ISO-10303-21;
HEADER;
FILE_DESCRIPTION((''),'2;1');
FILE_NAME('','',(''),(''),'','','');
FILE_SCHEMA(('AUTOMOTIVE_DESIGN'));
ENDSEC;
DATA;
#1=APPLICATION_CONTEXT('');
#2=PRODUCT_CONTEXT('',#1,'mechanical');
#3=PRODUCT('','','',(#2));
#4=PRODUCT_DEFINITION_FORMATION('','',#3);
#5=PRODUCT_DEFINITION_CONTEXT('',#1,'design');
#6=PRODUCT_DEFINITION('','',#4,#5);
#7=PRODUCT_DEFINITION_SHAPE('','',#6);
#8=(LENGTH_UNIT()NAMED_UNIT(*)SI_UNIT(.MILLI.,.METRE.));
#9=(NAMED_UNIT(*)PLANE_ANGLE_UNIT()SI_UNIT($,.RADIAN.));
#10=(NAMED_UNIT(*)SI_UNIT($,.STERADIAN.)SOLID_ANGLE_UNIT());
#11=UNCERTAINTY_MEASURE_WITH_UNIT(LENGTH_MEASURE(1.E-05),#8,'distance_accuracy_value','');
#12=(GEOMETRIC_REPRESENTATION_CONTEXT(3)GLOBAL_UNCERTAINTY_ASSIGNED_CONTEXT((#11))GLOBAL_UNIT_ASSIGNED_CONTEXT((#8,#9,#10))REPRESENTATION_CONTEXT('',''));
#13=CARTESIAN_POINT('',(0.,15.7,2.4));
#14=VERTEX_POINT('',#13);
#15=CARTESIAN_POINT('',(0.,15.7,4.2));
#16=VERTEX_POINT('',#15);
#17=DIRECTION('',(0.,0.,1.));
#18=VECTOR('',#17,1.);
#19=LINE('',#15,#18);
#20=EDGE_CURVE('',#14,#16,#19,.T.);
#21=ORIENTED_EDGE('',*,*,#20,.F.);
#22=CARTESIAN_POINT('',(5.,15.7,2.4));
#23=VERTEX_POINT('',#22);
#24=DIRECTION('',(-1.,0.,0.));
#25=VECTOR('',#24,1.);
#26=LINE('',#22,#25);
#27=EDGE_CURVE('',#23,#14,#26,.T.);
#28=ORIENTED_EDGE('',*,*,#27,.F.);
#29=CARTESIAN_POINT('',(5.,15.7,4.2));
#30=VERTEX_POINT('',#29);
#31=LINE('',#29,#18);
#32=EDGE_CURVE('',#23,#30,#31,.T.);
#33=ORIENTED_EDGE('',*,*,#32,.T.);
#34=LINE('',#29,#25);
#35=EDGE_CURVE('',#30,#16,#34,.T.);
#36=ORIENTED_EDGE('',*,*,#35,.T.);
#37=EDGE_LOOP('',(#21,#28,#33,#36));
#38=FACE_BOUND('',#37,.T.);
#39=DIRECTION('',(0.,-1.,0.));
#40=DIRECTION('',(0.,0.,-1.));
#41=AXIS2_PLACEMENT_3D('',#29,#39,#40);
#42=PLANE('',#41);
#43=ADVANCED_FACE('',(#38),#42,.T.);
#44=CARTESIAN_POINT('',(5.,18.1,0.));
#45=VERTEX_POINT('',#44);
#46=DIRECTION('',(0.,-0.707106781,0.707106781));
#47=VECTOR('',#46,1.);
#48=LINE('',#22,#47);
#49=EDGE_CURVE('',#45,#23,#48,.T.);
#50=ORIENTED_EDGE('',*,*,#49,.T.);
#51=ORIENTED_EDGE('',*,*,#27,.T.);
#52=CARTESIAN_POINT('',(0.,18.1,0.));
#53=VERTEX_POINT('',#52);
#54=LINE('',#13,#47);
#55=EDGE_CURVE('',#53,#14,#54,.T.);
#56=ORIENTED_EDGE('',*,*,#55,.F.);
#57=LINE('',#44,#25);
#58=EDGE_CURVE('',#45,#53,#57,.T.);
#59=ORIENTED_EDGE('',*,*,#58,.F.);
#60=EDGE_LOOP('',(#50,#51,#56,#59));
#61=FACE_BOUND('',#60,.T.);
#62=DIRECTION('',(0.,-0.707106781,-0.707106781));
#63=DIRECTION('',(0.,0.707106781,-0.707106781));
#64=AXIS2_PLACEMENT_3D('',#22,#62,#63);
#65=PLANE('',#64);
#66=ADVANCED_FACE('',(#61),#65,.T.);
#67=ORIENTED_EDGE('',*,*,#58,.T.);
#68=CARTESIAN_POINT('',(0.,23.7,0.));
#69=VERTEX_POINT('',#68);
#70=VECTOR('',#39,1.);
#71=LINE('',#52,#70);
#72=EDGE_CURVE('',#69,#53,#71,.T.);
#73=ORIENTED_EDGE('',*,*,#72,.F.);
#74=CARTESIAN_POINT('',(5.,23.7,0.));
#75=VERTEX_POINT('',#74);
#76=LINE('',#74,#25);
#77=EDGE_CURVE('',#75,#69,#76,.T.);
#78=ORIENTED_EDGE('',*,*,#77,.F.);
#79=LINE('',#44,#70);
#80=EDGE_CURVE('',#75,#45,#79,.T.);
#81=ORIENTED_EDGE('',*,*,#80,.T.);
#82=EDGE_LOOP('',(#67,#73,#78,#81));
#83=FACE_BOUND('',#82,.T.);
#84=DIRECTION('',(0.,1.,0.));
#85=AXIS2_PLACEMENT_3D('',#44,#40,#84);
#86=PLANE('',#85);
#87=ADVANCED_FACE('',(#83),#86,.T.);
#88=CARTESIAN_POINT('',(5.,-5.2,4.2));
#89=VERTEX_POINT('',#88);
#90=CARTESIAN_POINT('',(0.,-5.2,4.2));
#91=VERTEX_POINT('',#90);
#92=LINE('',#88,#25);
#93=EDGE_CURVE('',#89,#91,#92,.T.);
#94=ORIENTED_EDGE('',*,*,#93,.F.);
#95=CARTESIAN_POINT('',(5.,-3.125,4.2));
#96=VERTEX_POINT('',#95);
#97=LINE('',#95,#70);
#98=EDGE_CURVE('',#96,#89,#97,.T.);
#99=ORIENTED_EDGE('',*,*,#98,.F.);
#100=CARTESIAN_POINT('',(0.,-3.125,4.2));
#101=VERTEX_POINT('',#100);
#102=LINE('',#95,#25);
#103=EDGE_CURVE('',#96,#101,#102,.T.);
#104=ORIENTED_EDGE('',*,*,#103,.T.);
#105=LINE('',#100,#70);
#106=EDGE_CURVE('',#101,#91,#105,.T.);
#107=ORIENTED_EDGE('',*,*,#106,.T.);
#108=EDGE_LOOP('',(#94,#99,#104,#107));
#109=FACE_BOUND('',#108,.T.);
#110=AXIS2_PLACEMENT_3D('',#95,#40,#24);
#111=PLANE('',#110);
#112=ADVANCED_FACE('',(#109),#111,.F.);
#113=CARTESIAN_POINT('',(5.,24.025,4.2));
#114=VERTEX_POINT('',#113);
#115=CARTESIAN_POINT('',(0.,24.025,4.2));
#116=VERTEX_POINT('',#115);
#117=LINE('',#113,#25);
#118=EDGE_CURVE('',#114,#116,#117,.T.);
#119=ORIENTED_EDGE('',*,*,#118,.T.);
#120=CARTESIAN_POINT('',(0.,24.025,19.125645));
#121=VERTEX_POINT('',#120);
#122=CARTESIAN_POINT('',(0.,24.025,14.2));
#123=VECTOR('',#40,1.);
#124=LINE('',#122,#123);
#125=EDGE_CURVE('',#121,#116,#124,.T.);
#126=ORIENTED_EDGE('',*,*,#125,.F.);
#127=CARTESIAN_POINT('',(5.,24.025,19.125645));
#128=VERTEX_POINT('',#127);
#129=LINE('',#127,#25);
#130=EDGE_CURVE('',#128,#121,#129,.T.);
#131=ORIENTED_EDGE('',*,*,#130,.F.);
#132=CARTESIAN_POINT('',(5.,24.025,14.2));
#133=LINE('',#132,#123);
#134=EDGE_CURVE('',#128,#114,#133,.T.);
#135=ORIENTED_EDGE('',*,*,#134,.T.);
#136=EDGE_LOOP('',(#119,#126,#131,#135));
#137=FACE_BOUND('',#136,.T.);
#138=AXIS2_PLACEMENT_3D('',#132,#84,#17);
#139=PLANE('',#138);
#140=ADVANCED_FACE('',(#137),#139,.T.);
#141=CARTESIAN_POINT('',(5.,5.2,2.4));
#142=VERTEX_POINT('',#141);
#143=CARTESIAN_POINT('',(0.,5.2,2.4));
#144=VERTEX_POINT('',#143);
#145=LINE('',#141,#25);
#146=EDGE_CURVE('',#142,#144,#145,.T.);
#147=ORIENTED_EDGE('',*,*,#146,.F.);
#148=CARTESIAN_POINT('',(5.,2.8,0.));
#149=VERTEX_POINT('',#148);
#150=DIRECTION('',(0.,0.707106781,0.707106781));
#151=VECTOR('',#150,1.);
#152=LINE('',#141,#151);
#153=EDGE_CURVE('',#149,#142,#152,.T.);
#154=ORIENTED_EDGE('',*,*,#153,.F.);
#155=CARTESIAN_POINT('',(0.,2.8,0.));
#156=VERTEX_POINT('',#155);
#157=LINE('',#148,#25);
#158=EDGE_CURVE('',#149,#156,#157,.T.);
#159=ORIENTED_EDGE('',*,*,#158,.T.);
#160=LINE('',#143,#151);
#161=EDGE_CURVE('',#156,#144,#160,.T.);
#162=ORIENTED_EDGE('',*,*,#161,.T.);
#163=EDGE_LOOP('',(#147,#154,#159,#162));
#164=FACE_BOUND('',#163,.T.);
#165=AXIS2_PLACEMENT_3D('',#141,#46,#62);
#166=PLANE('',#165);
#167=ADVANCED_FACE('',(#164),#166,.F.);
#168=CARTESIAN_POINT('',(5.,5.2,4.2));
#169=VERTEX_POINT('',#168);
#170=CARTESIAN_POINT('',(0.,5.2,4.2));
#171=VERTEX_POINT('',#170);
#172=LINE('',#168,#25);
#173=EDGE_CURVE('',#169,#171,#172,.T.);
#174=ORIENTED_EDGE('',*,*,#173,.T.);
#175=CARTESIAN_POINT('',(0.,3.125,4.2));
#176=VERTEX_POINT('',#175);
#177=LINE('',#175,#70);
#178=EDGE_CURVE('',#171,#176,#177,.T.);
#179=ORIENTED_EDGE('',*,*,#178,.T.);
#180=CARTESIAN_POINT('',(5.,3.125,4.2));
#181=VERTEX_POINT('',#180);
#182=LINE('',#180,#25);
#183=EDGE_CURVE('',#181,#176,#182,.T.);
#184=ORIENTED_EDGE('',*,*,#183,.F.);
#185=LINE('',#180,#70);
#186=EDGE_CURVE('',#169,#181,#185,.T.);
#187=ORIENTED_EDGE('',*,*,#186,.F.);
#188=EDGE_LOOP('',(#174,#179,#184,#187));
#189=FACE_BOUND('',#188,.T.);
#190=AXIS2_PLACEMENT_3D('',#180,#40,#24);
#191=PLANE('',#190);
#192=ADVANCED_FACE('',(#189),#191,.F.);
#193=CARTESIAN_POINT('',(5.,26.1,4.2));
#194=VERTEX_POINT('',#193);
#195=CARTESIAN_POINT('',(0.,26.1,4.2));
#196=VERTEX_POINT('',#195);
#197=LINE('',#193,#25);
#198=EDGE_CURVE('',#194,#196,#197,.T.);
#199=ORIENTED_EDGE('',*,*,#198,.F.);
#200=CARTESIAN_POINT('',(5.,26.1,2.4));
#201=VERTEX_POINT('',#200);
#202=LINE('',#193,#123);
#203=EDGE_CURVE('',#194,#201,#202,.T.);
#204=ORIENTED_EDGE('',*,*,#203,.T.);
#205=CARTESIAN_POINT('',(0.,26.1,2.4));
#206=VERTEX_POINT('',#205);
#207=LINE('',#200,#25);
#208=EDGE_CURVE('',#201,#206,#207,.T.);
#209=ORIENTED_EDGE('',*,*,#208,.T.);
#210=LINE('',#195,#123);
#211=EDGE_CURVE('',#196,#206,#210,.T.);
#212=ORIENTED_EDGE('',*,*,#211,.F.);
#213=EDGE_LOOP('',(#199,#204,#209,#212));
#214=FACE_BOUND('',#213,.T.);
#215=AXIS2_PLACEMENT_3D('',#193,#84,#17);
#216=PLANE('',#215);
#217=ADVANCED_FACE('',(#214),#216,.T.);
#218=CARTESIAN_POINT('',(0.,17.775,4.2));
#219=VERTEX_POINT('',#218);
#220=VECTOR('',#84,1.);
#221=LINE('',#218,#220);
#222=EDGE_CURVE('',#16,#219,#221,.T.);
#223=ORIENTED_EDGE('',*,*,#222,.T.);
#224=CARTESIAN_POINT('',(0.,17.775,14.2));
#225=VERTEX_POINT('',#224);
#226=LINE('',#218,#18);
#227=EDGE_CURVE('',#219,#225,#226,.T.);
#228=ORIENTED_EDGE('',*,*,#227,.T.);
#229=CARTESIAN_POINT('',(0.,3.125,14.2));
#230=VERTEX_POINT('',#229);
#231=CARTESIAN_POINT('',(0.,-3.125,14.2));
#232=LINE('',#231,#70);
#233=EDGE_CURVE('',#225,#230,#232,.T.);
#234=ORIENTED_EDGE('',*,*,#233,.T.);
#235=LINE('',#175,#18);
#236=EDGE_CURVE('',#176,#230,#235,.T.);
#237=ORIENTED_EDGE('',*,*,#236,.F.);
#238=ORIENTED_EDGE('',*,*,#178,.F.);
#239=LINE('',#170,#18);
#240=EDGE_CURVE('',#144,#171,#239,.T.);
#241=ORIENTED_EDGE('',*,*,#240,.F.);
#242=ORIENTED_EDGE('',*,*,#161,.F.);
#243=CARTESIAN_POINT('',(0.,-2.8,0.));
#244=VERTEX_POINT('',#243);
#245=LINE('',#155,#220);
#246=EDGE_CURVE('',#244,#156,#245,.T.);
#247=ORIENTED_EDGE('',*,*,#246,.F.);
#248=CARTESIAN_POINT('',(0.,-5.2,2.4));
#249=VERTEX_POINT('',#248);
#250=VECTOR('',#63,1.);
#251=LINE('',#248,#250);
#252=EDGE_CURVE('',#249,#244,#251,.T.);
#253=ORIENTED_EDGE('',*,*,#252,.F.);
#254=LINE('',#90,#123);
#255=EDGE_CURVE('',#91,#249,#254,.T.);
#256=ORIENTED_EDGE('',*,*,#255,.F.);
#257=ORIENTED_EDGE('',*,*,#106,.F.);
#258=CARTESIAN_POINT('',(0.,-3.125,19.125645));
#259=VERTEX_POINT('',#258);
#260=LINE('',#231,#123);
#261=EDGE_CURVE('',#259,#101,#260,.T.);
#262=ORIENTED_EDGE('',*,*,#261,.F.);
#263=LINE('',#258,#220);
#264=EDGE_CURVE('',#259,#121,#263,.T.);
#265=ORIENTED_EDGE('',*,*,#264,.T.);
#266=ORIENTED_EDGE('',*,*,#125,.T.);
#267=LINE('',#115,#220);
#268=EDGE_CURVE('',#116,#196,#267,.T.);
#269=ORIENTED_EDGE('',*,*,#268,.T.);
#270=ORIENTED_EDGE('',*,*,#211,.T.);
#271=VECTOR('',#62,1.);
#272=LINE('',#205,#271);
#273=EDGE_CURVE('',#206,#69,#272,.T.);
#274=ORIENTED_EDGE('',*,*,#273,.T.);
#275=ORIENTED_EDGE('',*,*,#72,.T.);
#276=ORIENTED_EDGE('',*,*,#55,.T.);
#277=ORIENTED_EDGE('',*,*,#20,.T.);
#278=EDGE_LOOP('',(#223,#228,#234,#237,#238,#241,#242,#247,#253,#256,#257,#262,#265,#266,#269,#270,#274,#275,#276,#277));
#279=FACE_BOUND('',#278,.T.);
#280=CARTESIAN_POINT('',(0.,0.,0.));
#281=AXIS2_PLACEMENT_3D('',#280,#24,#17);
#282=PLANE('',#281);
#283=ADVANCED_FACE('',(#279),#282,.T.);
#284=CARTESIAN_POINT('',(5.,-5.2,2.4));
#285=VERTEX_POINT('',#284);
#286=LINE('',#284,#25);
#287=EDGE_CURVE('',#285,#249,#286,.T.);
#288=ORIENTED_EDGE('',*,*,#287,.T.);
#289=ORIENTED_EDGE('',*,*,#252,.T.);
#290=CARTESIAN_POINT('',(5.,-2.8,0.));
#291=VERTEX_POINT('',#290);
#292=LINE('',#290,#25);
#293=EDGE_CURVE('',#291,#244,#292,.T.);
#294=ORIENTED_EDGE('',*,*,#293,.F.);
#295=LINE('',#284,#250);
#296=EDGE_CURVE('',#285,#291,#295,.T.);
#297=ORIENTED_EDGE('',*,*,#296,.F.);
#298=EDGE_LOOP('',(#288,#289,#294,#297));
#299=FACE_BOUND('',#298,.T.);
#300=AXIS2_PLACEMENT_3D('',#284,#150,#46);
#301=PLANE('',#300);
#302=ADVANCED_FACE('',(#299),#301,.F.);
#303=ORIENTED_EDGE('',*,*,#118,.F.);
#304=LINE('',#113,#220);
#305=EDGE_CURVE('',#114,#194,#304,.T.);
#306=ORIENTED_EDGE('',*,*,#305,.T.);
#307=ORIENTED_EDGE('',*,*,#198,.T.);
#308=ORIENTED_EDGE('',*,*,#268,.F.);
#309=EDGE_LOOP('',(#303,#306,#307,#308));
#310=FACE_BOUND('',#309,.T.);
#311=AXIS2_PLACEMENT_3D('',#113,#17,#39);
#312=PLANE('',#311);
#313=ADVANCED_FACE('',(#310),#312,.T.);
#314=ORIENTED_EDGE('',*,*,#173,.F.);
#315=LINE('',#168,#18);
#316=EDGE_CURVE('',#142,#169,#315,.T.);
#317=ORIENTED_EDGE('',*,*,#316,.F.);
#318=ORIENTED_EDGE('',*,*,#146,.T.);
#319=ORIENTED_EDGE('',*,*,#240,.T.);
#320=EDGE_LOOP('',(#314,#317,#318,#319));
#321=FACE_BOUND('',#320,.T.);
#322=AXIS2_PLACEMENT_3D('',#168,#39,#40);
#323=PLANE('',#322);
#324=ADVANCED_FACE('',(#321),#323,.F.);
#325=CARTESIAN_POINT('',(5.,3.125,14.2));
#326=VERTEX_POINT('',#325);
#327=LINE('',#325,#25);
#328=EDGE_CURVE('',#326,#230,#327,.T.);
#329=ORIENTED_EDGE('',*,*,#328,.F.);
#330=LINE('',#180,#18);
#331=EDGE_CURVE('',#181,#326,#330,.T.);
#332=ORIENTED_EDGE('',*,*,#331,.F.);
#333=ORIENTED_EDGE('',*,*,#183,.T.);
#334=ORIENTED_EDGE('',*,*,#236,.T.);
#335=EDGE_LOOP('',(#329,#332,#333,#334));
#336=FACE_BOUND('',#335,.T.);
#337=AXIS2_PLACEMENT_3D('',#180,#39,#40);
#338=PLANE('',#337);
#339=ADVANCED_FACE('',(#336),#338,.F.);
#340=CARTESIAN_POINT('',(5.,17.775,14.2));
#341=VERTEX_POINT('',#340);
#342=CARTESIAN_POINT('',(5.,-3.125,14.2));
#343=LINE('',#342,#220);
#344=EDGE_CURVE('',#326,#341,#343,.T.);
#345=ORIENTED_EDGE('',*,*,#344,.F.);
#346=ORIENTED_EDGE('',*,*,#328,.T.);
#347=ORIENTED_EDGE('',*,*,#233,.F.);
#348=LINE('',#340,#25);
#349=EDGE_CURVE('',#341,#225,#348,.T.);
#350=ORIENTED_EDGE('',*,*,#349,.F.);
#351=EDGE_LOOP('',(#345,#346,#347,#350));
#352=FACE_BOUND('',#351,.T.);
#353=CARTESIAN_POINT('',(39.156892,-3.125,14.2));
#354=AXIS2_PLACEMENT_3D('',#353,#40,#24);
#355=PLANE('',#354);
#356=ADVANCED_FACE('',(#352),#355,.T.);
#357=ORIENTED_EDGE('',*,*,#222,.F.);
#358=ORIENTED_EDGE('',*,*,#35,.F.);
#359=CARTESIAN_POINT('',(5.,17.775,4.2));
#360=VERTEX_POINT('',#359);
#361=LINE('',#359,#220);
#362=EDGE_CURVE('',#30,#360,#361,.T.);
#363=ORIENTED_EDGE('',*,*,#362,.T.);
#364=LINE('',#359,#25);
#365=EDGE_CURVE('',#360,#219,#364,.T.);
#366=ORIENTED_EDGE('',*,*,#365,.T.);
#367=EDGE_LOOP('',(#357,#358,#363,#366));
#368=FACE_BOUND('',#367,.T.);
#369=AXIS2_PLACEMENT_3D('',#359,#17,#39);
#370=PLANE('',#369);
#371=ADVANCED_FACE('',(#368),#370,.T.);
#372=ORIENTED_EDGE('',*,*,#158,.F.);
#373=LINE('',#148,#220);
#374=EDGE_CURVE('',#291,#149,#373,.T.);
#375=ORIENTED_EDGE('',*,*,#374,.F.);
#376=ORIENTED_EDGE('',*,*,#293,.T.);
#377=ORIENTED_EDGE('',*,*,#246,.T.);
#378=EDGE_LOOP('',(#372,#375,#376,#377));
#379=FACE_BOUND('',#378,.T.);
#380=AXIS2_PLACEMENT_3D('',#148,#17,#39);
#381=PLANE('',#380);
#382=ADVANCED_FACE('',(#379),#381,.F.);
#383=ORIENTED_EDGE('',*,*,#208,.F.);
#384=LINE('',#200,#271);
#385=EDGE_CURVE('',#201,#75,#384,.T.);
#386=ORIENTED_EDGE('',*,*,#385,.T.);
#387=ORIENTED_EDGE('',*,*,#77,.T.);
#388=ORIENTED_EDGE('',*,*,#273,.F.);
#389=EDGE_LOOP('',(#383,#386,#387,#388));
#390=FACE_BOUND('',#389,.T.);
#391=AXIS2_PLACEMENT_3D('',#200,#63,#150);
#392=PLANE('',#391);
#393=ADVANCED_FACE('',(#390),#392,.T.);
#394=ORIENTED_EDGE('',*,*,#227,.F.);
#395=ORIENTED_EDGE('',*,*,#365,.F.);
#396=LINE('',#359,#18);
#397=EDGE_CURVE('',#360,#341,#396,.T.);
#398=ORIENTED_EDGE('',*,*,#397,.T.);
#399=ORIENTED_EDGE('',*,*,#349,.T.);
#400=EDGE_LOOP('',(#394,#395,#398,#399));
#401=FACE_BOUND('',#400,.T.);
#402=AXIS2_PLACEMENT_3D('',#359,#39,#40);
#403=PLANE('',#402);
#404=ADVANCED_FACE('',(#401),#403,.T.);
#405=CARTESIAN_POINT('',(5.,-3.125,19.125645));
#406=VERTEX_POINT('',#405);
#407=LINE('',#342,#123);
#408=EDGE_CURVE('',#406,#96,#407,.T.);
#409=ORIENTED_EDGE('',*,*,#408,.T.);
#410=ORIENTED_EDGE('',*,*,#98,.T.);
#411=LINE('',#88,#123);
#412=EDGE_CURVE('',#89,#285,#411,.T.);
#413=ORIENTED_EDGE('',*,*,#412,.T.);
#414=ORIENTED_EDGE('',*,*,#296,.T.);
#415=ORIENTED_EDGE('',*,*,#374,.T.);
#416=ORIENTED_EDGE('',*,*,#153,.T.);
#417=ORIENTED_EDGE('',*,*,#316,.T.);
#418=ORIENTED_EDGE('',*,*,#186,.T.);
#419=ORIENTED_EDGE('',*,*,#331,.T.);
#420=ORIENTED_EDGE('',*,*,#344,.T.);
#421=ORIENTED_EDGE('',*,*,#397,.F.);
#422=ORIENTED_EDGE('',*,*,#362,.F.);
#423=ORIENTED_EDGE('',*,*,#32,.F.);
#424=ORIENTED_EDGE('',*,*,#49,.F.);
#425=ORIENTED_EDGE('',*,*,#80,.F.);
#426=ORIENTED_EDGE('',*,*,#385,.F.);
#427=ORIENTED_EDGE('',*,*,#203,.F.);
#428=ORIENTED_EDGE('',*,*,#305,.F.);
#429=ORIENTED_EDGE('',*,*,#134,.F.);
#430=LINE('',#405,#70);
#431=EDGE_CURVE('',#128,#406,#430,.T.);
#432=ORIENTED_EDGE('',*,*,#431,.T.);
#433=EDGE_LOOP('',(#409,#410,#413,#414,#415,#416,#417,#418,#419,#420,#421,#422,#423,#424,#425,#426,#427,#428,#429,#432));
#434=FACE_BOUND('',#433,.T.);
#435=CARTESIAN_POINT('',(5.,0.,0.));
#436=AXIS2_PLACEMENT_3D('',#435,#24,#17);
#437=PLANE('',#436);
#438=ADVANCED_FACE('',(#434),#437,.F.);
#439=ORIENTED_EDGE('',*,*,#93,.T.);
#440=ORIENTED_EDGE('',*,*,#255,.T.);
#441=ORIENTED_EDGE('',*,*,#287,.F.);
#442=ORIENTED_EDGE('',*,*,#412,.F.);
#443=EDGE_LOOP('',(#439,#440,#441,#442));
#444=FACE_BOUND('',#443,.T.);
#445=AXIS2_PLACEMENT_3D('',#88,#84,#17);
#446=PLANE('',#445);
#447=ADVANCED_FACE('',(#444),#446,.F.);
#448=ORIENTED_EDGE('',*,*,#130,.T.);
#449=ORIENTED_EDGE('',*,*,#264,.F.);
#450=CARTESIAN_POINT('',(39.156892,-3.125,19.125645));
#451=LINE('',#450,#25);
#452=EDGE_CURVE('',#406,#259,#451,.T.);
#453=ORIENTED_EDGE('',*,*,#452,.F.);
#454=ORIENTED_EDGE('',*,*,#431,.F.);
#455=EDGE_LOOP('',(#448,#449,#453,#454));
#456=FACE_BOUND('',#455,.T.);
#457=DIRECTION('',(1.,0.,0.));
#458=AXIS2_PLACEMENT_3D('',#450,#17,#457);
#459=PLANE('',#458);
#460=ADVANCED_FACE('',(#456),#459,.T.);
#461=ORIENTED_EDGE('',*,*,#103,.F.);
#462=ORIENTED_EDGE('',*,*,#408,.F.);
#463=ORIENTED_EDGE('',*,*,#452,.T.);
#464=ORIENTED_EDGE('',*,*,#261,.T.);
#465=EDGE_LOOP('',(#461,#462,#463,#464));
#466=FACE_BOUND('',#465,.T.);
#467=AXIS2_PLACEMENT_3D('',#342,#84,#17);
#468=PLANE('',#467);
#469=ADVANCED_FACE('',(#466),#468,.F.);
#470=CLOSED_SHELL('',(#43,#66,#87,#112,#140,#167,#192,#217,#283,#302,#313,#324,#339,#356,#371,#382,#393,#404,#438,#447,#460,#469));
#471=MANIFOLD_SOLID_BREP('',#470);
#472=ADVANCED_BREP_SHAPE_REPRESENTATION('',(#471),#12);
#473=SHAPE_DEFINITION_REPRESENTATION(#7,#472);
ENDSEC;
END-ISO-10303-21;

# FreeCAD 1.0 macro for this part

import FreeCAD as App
import Part
import Sketcher

V = App.Vector


def add_polygon(sketch, points):
    """Adds a closed chain of lines whose ends are joined by coincident constraints."""
    first, n = sketch.GeometryCount, len(points)
    for a, b in zip(points, points[1:] + points[:1]):
        sketch.addGeometry(Part.LineSegment(App.Vector(*a, 0), App.Vector(*b, 0)), False)
    for i in range(n):
        sketch.addConstraint(Sketcher.Constraint("Coincident", first + i, 2, first + (i + 1) % n, 1))

doc = App.newDocument("Part")
body = doc.addObject("PartDesign::Body", "Body")

# Sketch on YZ plane
sketch1 = body.newObject("Sketcher::SketchObject", "Sketch")
sketch1.AttachmentSupport = (doc.getObject("YZ_Plane"), [""])
sketch1.MapMode = "FlatFace"
add_polygon(sketch1, [(3.1, 4.2), (3.1, 14.2), (-3.1, 14.2), (-3.1, 4.2), (-5.2, 4.2), (-5.2, 2.4), (-2.8, 0), (2.8, 0), (5.2, 2.4), (5.2, 4.2)])  # lines 0-9
sketch1.addConstraint([
    Sketcher.Constraint("Vertical", 0),
    Sketcher.Constraint("Horizontal", 1),
    Sketcher.Constraint("Vertical", 2),
    Sketcher.Constraint("Horizontal", 3),
    Sketcher.Constraint("Vertical", 4),
    Sketcher.Constraint("Horizontal", 6),
    Sketcher.Constraint("Vertical", 8),
    Sketcher.Constraint("Horizontal", 9),
    Sketcher.Constraint("Symmetric", 5, 2, 6, 2, -1, 1),
    Sketcher.Constraint("Symmetric", 4, 2, 7, 2, -2),
    Sketcher.Constraint("Symmetric", 2, 2, 9, 2, -2),
    Sketcher.Constraint("Perpendicular", 5, 7),
    Sketcher.Constraint("DistanceY", 0, 1, 0, 2, 10.0),
    Sketcher.Constraint("DistanceX", 6, 1, 6, 2, 5.6),
    Sketcher.Constraint("DistanceY", 4, 2, 4, 1, 1.8),
    Sketcher.Constraint("DistanceX", 4, 2, 6, 2, 8.0),
    Sketcher.Constraint("DistanceX", 1, 2, 1, 1, 6.25),
])
pad1 = body.newObject("PartDesign::Pad", "Pad")
pad1.Profile = sketch1
pad1.Length = 5

# Sketch on YZ plane
sketch2 = body.newObject("Sketcher::SketchObject", "Sketch001")
sketch2.AttachmentSupport = (doc.getObject("YZ_Plane"), [""])
sketch2.MapMode = "FlatFace"
add_polygon(sketch2, [(30.7, 14.2), (-3.1, 14.2), (-3.1, 19.1), (30.7, 19.1)])  # lines 0-3
sketch2.addConstraint([
    Sketcher.Constraint("Horizontal", 0),
    Sketcher.Constraint("Vertical", 1),
    Sketcher.Constraint("Horizontal", 2),
    Sketcher.Constraint("Vertical", 3),
    Sketcher.Constraint("DistanceY", -1, 1, 0, 2, 14.2),
    Sketcher.Constraint("DistanceX", 0, 2, -1, 1, 3.125),
    Sketcher.Constraint("DistanceX", 0, 2, 0, 1, 33.799872),
    Sketcher.Constraint("DistanceY", 1, 1, 1, 2, 4.925645),
])
pad2 = body.newObject("PartDesign::Pad", "Pad001")
pad2.Profile = sketch2
pad2.Length = 5
doc.recompute()

datumplane = body.newObject("PartDesign::Plane", "DatumPlane")
datumplane.AttachmentSupport = (doc.getObject("XZ_Plane"), [""])
datumplane.MapMode = "FlatFace"
datumplane.AttachmentOffset = App.Placement(V(0, 0, -10.45), App.Rotation())
mirrored = body.newObject("PartDesign::Mirrored", "Mirrored")
mirrored.Originals = [pad1]
mirrored.MirrorPlane = (datumplane, [""])
body.Tip = mirrored

# Sketch on YZ plane
sketch3 = body.newObject("Sketcher::SketchObject", "Sketch002")
sketch3.AttachmentSupport = (doc.getObject("YZ_Plane"), [""])
sketch3.MapMode = "FlatFace"
add_polygon(sketch3, [(30.7, 14.2), (24, 14.2), (24, 19.1), (30.7, 19.1)])  # lines 0-3
sketch3.addConstraint([
    Sketcher.Constraint("Horizontal", 0),
    Sketcher.Constraint("Vertical", 1),
    Sketcher.Constraint("Horizontal", 2),
    Sketcher.Constraint("Vertical", 3),
    Sketcher.Constraint("DistanceY", -1, 1, 0, 2, 14.2),
    Sketcher.Constraint("DistanceX", -1, 1, 0, 2, 24.025),
    Sketcher.Constraint("DistanceX", 0, 2, 0, 1, 6.649872),
    Sketcher.Constraint("DistanceY", 1, 1, 1, 2, 4.925645),
])
pocket1 = body.newObject("PartDesign::Pocket", "Pocket")
pocket1.Profile = sketch3
pocket1.Type = "ThroughAll"
pocket1.Reversed = True

doc.recompute()
